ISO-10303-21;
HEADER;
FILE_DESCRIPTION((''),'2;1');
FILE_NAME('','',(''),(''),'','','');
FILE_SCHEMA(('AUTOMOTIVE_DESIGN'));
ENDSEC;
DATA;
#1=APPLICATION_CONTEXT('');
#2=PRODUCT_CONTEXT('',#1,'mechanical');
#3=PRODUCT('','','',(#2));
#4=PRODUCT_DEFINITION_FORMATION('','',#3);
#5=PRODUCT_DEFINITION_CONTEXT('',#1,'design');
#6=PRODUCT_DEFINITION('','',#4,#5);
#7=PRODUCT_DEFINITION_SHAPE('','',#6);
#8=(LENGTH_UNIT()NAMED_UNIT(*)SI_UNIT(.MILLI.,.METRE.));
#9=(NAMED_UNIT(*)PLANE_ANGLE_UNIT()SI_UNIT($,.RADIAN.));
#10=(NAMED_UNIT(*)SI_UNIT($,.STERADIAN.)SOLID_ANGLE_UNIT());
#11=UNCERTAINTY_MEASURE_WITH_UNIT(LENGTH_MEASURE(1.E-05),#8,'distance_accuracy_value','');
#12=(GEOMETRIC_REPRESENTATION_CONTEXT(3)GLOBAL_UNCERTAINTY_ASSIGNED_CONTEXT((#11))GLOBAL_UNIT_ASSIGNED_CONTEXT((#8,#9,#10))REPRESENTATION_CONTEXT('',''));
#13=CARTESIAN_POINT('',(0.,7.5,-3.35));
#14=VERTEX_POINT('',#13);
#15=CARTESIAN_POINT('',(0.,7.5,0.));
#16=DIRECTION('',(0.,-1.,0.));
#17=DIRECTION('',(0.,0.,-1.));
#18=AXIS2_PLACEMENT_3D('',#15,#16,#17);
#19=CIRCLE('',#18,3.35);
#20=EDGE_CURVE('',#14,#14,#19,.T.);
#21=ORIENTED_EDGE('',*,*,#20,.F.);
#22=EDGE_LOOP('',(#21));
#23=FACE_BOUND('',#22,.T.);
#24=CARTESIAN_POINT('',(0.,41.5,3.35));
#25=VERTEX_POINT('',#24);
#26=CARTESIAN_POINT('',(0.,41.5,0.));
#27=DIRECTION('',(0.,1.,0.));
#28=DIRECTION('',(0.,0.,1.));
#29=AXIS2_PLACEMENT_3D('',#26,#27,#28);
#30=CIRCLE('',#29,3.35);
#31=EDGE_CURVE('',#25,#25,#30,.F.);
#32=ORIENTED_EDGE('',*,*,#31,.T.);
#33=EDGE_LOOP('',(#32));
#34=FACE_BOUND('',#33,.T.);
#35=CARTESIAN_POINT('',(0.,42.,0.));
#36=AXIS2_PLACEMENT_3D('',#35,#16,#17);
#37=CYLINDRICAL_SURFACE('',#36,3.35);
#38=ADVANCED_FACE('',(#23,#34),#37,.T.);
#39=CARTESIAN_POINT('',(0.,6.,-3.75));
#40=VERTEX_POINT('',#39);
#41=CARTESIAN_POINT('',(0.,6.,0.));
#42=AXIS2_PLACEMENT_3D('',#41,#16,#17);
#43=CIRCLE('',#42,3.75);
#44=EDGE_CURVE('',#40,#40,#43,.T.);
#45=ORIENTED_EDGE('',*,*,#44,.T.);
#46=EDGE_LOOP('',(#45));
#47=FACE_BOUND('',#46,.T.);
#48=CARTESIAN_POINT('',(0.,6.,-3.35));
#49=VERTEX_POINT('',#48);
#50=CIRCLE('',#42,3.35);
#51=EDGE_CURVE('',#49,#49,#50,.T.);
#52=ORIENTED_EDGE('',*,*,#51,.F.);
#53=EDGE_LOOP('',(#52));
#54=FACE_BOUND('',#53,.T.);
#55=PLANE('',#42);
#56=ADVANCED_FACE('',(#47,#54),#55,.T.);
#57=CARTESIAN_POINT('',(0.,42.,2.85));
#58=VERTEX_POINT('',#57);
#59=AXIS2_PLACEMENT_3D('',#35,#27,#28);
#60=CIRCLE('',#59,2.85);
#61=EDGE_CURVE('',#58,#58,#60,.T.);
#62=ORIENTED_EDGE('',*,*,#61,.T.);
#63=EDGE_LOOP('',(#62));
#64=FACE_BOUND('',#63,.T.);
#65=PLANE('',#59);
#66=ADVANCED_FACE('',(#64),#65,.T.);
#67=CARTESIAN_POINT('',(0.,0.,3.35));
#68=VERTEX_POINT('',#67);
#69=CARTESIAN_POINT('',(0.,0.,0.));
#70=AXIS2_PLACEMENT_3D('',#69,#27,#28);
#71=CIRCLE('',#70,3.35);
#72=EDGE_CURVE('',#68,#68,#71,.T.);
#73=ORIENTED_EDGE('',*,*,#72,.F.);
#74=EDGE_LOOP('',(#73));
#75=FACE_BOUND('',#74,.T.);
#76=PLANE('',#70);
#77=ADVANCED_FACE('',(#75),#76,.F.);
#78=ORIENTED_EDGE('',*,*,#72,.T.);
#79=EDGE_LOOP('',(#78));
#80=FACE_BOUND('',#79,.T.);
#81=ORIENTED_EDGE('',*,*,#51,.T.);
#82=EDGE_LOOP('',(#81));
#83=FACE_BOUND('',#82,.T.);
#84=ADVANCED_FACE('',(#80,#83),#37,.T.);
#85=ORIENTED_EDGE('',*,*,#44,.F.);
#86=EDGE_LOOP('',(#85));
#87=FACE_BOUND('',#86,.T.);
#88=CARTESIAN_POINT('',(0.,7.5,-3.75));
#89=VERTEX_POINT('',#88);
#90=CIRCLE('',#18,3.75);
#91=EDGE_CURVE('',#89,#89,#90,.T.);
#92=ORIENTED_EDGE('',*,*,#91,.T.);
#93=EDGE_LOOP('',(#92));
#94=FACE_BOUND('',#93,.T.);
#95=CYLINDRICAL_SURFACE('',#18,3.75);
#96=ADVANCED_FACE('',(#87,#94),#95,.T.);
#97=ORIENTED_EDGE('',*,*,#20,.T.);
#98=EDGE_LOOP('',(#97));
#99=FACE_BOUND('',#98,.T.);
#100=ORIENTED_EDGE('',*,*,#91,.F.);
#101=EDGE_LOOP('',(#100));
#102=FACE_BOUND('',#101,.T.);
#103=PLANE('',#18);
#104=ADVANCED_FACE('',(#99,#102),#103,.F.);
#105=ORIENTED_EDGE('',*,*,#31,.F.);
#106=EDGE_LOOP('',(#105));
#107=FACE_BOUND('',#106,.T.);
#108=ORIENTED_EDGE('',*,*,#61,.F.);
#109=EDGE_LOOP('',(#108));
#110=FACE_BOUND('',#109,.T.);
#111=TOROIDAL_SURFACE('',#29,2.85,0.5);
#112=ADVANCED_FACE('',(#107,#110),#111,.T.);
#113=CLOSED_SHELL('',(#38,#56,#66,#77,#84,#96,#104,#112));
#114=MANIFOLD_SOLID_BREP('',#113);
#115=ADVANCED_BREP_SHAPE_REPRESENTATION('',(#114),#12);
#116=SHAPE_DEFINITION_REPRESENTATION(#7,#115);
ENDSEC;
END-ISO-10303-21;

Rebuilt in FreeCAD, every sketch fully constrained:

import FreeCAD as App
import Part
import Sketcher


def edges_at(feature, points):
    """Names of the edges that pass closest to the given points."""
    edges = feature.Shape.Edges
    near = lambda p: min(range(len(edges)), key=lambda i: edges[i].distToShape(Part.Vertex(*p))[0])
    return sorted({f"Edge{near(p) + 1}" for p in points})

doc = App.newDocument("Part")
body = doc.addObject("PartDesign::Body", "Body")

# Sketch on XZ plane
sketch1 = body.newObject("Sketcher::SketchObject", "Sketch")
sketch1.AttachmentSupport = (doc.getObject("XZ_Plane"), [""])
sketch1.MapMode = "FlatFace"
sketch1.addGeometry(Part.Circle(App.Vector(0, 0, 0), App.Vector(0, 0, 1), 3.35), False)
sketch1.addConstraint(Sketcher.Constraint("Coincident", 0, 3, -1, 1))
sketch1.addConstraint(Sketcher.Constraint("Diameter", 0, 6.7))
pad1 = body.newObject("PartDesign::Pad", "Pad")
pad1.Profile = sketch1
pad1.Length = 42
pad1.Reversed = True

# Sketch on XZ plane
sketch2 = body.newObject("Sketcher::SketchObject", "Sketch001")
sketch2.AttachmentSupport = (doc.getObject("XZ_Plane"), [""])
sketch2.MapMode = "FlatFace"
sketch2.AttachmentOffset = App.Placement(App.Vector(0, 0, -6), App.Rotation())
sketch2.addGeometry(Part.Circle(App.Vector(0, 0, 0), App.Vector(0, 0, 1), 3.75), False)
sketch2.addConstraint(Sketcher.Constraint("Coincident", 0, 3, -1, 1))
sketch2.addConstraint(Sketcher.Constraint("Diameter", 0, 7.5))
pad2 = body.newObject("PartDesign::Pad", "Pad001")
pad2.Profile = sketch2
pad2.Length = 1.5
pad2.Reversed = True
doc.recompute()

fillet = body.newObject("PartDesign::Fillet", "Fillet")
fillet.Base = (pad2, edges_at(pad2, [(0, 42, -3.35)]))
fillet.Radius = 0.5

doc.recompute()
